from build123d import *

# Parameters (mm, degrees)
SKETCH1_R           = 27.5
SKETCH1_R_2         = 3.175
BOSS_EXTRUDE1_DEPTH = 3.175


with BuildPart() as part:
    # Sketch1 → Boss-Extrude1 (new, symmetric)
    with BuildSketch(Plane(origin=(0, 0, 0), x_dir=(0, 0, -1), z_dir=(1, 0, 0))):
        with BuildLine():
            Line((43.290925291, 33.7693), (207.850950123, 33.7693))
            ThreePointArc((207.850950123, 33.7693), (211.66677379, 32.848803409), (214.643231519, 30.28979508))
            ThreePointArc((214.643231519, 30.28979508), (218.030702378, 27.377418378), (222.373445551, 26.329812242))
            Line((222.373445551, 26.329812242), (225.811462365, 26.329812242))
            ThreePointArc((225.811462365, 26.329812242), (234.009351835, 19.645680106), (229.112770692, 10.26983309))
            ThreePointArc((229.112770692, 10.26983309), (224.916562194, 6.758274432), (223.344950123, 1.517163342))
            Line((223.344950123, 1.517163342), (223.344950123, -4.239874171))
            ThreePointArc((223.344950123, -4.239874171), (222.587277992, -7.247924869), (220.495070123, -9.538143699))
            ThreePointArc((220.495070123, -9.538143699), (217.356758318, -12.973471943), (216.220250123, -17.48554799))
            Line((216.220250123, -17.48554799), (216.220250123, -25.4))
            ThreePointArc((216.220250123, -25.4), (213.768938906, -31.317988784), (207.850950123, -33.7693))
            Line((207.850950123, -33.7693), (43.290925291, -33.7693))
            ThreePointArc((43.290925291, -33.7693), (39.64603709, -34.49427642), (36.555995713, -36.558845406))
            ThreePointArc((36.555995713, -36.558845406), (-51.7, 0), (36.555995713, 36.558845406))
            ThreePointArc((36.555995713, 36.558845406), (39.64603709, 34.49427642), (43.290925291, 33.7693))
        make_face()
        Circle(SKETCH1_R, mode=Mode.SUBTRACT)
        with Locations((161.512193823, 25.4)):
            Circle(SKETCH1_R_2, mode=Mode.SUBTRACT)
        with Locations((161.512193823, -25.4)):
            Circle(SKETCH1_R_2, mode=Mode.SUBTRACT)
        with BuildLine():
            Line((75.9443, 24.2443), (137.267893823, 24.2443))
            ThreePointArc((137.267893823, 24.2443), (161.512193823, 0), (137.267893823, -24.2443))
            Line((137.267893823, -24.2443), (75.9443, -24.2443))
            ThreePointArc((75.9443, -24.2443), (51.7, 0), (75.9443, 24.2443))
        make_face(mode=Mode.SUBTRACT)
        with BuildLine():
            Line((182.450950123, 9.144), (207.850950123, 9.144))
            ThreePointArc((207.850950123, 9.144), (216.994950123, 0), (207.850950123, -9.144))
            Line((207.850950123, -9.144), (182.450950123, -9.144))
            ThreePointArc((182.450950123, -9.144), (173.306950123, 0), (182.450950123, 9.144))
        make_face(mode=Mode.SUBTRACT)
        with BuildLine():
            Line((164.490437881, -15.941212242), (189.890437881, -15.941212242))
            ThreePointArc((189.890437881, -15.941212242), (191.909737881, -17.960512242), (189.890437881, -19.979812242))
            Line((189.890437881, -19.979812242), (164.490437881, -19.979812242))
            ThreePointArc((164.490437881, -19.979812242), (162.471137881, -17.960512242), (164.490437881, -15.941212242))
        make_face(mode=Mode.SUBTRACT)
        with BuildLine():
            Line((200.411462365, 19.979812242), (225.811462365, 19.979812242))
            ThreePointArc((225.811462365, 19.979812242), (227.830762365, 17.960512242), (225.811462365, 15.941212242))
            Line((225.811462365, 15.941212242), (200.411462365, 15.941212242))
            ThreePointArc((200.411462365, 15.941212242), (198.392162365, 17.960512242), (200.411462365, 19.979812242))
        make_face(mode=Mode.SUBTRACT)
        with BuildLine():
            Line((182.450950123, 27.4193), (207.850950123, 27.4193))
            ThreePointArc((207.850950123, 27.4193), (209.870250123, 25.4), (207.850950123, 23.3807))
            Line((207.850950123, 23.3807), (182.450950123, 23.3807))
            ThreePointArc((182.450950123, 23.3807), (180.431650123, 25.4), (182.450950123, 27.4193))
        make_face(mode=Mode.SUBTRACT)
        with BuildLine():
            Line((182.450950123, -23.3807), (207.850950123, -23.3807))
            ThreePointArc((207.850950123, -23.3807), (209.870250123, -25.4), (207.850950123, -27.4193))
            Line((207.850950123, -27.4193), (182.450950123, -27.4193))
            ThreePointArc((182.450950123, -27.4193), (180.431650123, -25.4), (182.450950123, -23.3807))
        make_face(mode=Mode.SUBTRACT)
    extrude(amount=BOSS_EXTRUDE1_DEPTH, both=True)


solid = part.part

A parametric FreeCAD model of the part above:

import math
import FreeCAD as App
import Part
import Sketcher
Q = App.Units.Quantity

doc = App.newDocument("Part")
body = doc.addObject("PartDesign::Body", "Body")

# Sketch on YZ plane
sketch1 = body.newObject("Sketcher::SketchObject", "Sketch")
sketch1.AttachmentSupport = (doc.getObject("YZ_Plane"), [""])
sketch1.MapMode = "FlatFace"
sketch1.addGeometry([
    Part.LineSegment(App.Vector(33.8, -207.9, 0), App.Vector(33.8, -43.3, 0)),  # 0
    Part.ArcOfCircle(Part.Circle(App.Vector(43.3, -43.3, 0), App.Vector(0, 0, 1), 9.5), math.radians(135), math.radians(180)),  # 1
    Part.ArcOfCircle(Part.Circle(App.Vector(0, 0, 0), App.Vector(0, 0, 1), 51.7), math.radians(-45), math.radians(225)),  # 2
    Part.ArcOfCircle(Part.Circle(App.Vector(-43.3, -43.3, 0), App.Vector(0, 0, 1), 9.5), math.radians(0), math.radians(45)),  # 3
    Part.LineSegment(App.Vector(-33.8, -43.3, 0), App.Vector(-33.8, -207.9, 0)),  # 4
    Part.ArcOfCircle(Part.Circle(App.Vector(-25.4, -207.9, 0), App.Vector(0, 0, 1), 8.4), math.radians(-180), math.radians(-90)),  # 5
    Part.LineSegment(App.Vector(-25.4, -216.2, 0), App.Vector(-17.5, -216.2, 0)),  # 6
    Part.ArcOfCircle(Part.Circle(App.Vector(-17.5, -225.7, 0), App.Vector(0, 0, 1), 9.5), math.radians(33), math.radians(90)),  # 7
    Part.ArcOfCircle(Part.Circle(App.Vector(-4.2, -217, 0), App.Vector(0, 0, 1), 6.4), math.radians(-147), math.radians(-90)),  # 8
    Part.LineSegment(App.Vector(-4.2, -223.3, 0), App.Vector(1.5, -223.3, 0)),  # 9
    Part.ArcOfCircle(Part.Circle(App.Vector(1.5, -232.9, 0), App.Vector(0, 0, 1), 9.5), math.radians(23), math.radians(90)),  # 10
    Part.ArcOfCircle(Part.Circle(App.Vector(18, -225.8, 0), App.Vector(0, 0, 1), 8.4), math.radians(-157), math.radians(0)),  # 11
    Part.LineSegment(App.Vector(26.3, -225.8, 0), App.Vector(26.3, -222.4, 0)),  # 12
    Part.ArcOfCircle(Part.Circle(App.Vector(35.9, -222.4, 0), App.Vector(0, 0, 1), 9.5), math.radians(126), math.radians(180)),  # 13
    Part.ArcOfCircle(Part.Circle(App.Vector(25.4, -207.9, 0), App.Vector(0, 0, 1), 8.4), math.radians(-54), math.radians(0)),  # 14
    Part.LineSegment(App.Vector(-23.4, -182.5, 0), App.Vector(-23.4, -207.9, 0)),  # 15
    Part.ArcOfCircle(Part.Circle(App.Vector(-25.4, -207.9, 0), App.Vector(0, 0, 1), 2), math.radians(180), math.radians(360)),  # 16
    Part.LineSegment(App.Vector(-27.4, -207.9, 0), App.Vector(-27.4, -182.5, 0)),  # 17
    Part.ArcOfCircle(Part.Circle(App.Vector(-25.4, -182.5, 0), App.Vector(0, 0, 1), 2), math.radians(0), math.radians(180)),  # 18
    Part.LineSegment(App.Vector(-15.9, -164.5, 0), App.Vector(-15.9, -189.9, 0)),  # 19
    Part.ArcOfCircle(Part.Circle(App.Vector(-18, -189.9, 0), App.Vector(0, 0, 1), 2), math.radians(180), math.radians(360)),  # 20
    Part.LineSegment(App.Vector(-20, -189.9, 0), App.Vector(-20, -164.5, 0)),  # 21
    Part.ArcOfCircle(Part.Circle(App.Vector(-18, -164.5, 0), App.Vector(0, 0, 1), 2), math.radians(0), math.radians(180)),  # 22
    Part.Circle(App.Vector(-25.4, -161.5, 0), App.Vector(0, 0, 1), 3.2),  # 23
    Part.LineSegment(App.Vector(9.1, -182.5, 0), App.Vector(9.1, -207.9, 0)),  # 24
    Part.ArcOfCircle(Part.Circle(App.Vector(0, -207.9, 0), App.Vector(0, 0, 1), 9.1), math.radians(180), math.radians(360)),  # 25
    Part.LineSegment(App.Vector(-9.1, -207.9, 0), App.Vector(-9.1, -182.5, 0)),  # 26
    Part.ArcOfCircle(Part.Circle(App.Vector(0, -182.5, 0), App.Vector(0, 0, 1), 9.1), math.radians(0), math.radians(180)),  # 27
    Part.LineSegment(App.Vector(24.2, -75.9, 0), App.Vector(24.2, -137.3, 0)),  # 28
    Part.ArcOfCircle(Part.Circle(App.Vector(0, -137.3, 0), App.Vector(0, 0, 1), 24.2), math.radians(180), math.radians(360)),  # 29
    Part.LineSegment(App.Vector(-24.2, -137.3, 0), App.Vector(-24.2, -75.9, 0)),  # 30
    Part.ArcOfCircle(Part.Circle(App.Vector(0, -75.9, 0), App.Vector(0, 0, 1), 24.2), math.radians(0), math.radians(180)),  # 31
    Part.LineSegment(App.Vector(20, -200.4, 0), App.Vector(20, -225.8, 0)),  # 32
    Part.ArcOfCircle(Part.Circle(App.Vector(18, -225.8, 0), App.Vector(0, 0, 1), 2), math.radians(180), math.radians(360)),  # 33
    Part.LineSegment(App.Vector(15.9, -225.8, 0), App.Vector(15.9, -200.4, 0)),  # 34
    Part.ArcOfCircle(Part.Circle(App.Vector(18, -200.4, 0), App.Vector(0, 0, 1), 2), math.radians(0), math.radians(180)),  # 35
    Part.LineSegment(App.Vector(27.4, -182.5, 0), App.Vector(27.4, -207.9, 0)),  # 36
    Part.ArcOfCircle(Part.Circle(App.Vector(25.4, -207.9, 0), App.Vector(0, 0, 1), 2), math.radians(180), math.radians(360)),  # 37
    Part.LineSegment(App.Vector(23.4, -207.9, 0), App.Vector(23.4, -182.5, 0)),  # 38
    Part.ArcOfCircle(Part.Circle(App.Vector(25.4, -182.5, 0), App.Vector(0, 0, 1), 2), math.radians(0), math.radians(180)),  # 39
    Part.Circle(App.Vector(25.4, -161.5, 0), App.Vector(0, 0, 1), 3.2),  # 40
    Part.Circle(App.Vector(0, 0, 0), App.Vector(0, 0, 1), 27.5),  # 41
], False)
sketch1.addConstraint([
    Sketcher.Constraint("Tangent", 0, 2, 1, 2),
    Sketcher.Constraint("Tangent", 1, 1, 2, 1),
    Sketcher.Constraint("Tangent", 2, 2, 3, 2),
    Sketcher.Constraint("Tangent", 3, 1, 4, 1),
    Sketcher.Constraint("Tangent", 4, 2, 5, 1),
    Sketcher.Constraint("Tangent", 5, 2, 6, 1),
    Sketcher.Constraint("Tangent", 6, 2, 7, 2),
    Sketcher.Constraint("Tangent", 7, 1, 8, 1),
    Sketcher.Constraint("Tangent", 8, 2, 9, 1),
    Sketcher.Constraint("Tangent", 9, 2, 10, 2),
    Sketcher.Constraint("Tangent", 10, 1, 11, 1),
    Sketcher.Constraint("Tangent", 11, 2, 12, 1),
    Sketcher.Constraint("Tangent", 12, 2, 13, 2),
    Sketcher.Constraint("Tangent", 13, 1, 14, 1),
    Sketcher.Constraint("Tangent", 14, 2, 0, 1),
    Sketcher.Constraint("Tangent", 15, 2, 16, 2),
    Sketcher.Constraint("Tangent", 16, 1, 17, 1),
    Sketcher.Constraint("Tangent", 17, 2, 18, 2),
    Sketcher.Constraint("Tangent", 18, 1, 15, 1),
    Sketcher.Constraint("Tangent", 19, 2, 20, 2),
    Sketcher.Constraint("Tangent", 20, 1, 21, 1),
    Sketcher.Constraint("Tangent", 21, 2, 22, 2),
    Sketcher.Constraint("Tangent", 22, 1, 19, 1),
    Sketcher.Constraint("Tangent", 24, 2, 25, 2),
    Sketcher.Constraint("Tangent", 25, 1, 26, 1),
    Sketcher.Constraint("Tangent", 26, 2, 27, 2),
    Sketcher.Constraint("Tangent", 27, 1, 24, 1),
    Sketcher.Constraint("Tangent", 28, 2, 29, 2),
    Sketcher.Constraint("Tangent", 29, 1, 30, 1),
    Sketcher.Constraint("Tangent", 30, 2, 31, 2),
    Sketcher.Constraint("Tangent", 31, 1, 28, 1),
    Sketcher.Constraint("Tangent", 32, 2, 33, 2),
    Sketcher.Constraint("Tangent", 33, 1, 34, 1),
    Sketcher.Constraint("Tangent", 34, 2, 35, 2),
    Sketcher.Constraint("Tangent", 35, 1, 32, 1),
    Sketcher.Constraint("Tangent", 36, 2, 37, 2),
    Sketcher.Constraint("Tangent", 37, 1, 38, 1),
    Sketcher.Constraint("Tangent", 38, 2, 39, 2),
    Sketcher.Constraint("Tangent", 39, 1, 36, 1),
    Sketcher.Constraint("Vertical", 0),
    Sketcher.Constraint("Vertical", 4),
    Sketcher.Constraint("Horizontal", 6),
    Sketcher.Constraint("Horizontal", 9),
    Sketcher.Constraint("Vertical", 12),
    Sketcher.Constraint("Vertical", 15),
    Sketcher.Constraint("Vertical", 17),
    Sketcher.Constraint("Vertical", 19),
    Sketcher.Constraint("Vertical", 21),
    Sketcher.Constraint("Vertical", 24),
    Sketcher.Constraint("Vertical", 26),
    Sketcher.Constraint("Vertical", 28),
    Sketcher.Constraint("Vertical", 30),
    Sketcher.Constraint("Vertical", 32),
    Sketcher.Constraint("Vertical", 34),
    Sketcher.Constraint("Vertical", 36),
    Sketcher.Constraint("Vertical", 38),
    Sketcher.Constraint("Coincident", 2, 3, -1, 1),
    Sketcher.Constraint("Coincident", 41, 3, -1, 1),
    Sketcher.Constraint("Coincident", 16, 3, 5, 3),
    Sketcher.Constraint("Coincident", 33, 3, 11, 3),
    Sketcher.Constraint("Coincident", 37, 3, 14, 3),
    Sketcher.Constraint("Equal", 1, 3),
    Sketcher.Constraint("Equal", 3, 7),
    Sketcher.Constraint("Equal", 7, 10),
    Sketcher.Constraint("Equal", 5, 11),
    Sketcher.Constraint("Equal", 10, 13),
    Sketcher.Constraint("Equal", 11, 14),
    Sketcher.Constraint("Equal", 18, 20),
    Sketcher.Constraint("Equal", 22, 33),
    Sketcher.Constraint("Equal", 35, 37),
    Sketcher.Constraint("Equal", 23, 40),
    Sketcher.Constraint("Symmetric", 5, 3, 14, 3, -2),
    Sketcher.Constraint("Symmetric", 23, 3, 40, 3, -2),
    Sketcher.Constraint("PointOnObject", 25, 3, -2),
    Sketcher.Constraint("PointOnObject", 29, 3, -2),
    Sketcher.Constraint("Horizontal", 16, 3, 25, 3),
    Sketcher.Constraint("Horizontal", 18, 3, 27, 3),
    Sketcher.Constraint("Horizontal", 27, 3, 39, 3),
    Sketcher.Constraint("Vertical", 18, 3, 23, 3),
    Sketcher.Constraint("Equal", 17, 19),
    Sketcher.Constraint("Equal", 26, 32),
    Sketcher.Constraint("Diameter", 23, Q("0.25 in")),
    Sketcher.Constraint("DistanceY", 15, 2, 15, 1, Q("1 in")),
    Sketcher.Constraint("Radius", 8, Q("0.25 in")),
    Sketcher.Constraint("Radius", 25, Q("0.36 in")),
    Sketcher.Constraint("DistanceX", 5, 3, -1, 1, Q("1 in")),
    Sketcher.Constraint("Radius", 1, Q("0.375 in")),
    Sketcher.Constraint("Radius", 5, Q("0.3295 in")),
    Sketcher.Constraint("Radius", 16, Q("0.0795 in")),
    Sketcher.Constraint("Radius", 29, Q("0.9545 in")),
    Sketcher.Constraint("Diameter", 41, 55.0),
    Sketcher.Constraint("Radius", 2, 51.7),
    Sketcher.Constraint("DistanceY", 31, 3, -1, 1, 75.9443),
    Sketcher.Constraint("DistanceX", 6, 1, 6, 2, 7.914452),
    Sketcher.Constraint("DistanceX", 9, 1, 9, 2, 5.757038),
    Sketcher.Constraint("DistanceY", 0, 1, 0, 2, 164.560025),
    Sketcher.Constraint("DistanceY", 12, 1, 12, 2, 3.438017),
    Sketcher.Constraint("DistanceY", 28, 2, 28, 1, 61.323594),
    Sketcher.Constraint("DistanceY", 8, 3, -1, 1, 216.99495),
    Sketcher.Constraint("DistanceX", 20, 3, -1, 1, 17.960512),
    Sketcher.Constraint("DistanceY", 20, 3, -1, 1, 189.890438),
    Sketcher.Constraint("DistanceY", 23, 3, -1, 1, 161.512194),
])
pad1 = body.newObject("PartDesign::Pad", "Pad")
pad1.Profile = sketch1
pad1.Length = Q("0.25 in")
pad1.Midplane = True

doc.recompute()
